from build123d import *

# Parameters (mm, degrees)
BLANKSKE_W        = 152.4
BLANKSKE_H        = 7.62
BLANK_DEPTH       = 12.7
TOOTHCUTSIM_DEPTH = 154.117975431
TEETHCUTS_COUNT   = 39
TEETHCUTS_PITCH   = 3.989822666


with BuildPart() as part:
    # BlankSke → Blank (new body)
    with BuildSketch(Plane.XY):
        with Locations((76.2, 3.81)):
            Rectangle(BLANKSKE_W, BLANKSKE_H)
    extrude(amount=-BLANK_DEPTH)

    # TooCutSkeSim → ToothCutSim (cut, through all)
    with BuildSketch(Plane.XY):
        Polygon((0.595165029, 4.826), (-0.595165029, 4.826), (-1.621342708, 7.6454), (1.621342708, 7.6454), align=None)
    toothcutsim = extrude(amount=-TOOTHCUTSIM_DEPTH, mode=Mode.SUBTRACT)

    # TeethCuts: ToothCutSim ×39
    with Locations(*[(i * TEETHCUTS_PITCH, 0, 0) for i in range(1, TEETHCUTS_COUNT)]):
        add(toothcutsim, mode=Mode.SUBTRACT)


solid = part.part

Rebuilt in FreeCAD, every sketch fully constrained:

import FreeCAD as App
import Part
import Sketcher

V = App.Vector
Q = App.Units.Quantity

doc = App.newDocument("Part")
body = doc.addObject("PartDesign::Body", "Body")

sketch1 = body.newObject("Sketcher::SketchObject", "Sketch")
sketch1.AttachmentSupport = (doc.getObject("XY_Plane"), [""])
sketch1.MapMode = "FlatFace"
sketch1.addGeometry(Part.LineSegment(V(0, 8, 0), V(0, 0, 0)), False)
sketch1.addGeometry(Part.LineSegment(V(0, 0, 0), V(152, 0, 0)), False)
sketch1.addGeometry(Part.LineSegment(V(152, 0, 0), V(152, 8, 0)), False)
sketch1.addGeometry(Part.LineSegment(V(152, 8, 0), V(0, 8, 0)), False)
sketch1.addConstraint(Sketcher.Constraint("Coincident", 0, 2, 1, 1))
sketch1.addConstraint(Sketcher.Constraint("Coincident", 1, 2, 2, 1))
sketch1.addConstraint(Sketcher.Constraint("Coincident", 2, 2, 3, 1))
sketch1.addConstraint(Sketcher.Constraint("Coincident", 3, 2, 0, 1))
sketch1.addConstraint(Sketcher.Constraint("Vertical", 0))
sketch1.addConstraint(Sketcher.Constraint("Horizontal", 1))
sketch1.addConstraint(Sketcher.Constraint("Vertical", 2))
sketch1.addConstraint(Sketcher.Constraint("Horizontal", 3))
sketch1.addConstraint(Sketcher.Constraint("Coincident", 0, 2, -1, 1))
sketch1.addConstraint(Sketcher.Constraint("DistanceX", 1, 1, 1, 2, Q("6 in")))
sketch1.addConstraint(Sketcher.Constraint("DistanceY", 0, 2, 0, 1, Q("0.3 in")))
pad1 = body.newObject("PartDesign::Pad", "Pad")
pad1.Profile = sketch1
pad1.Length = Q("0.5 in")
pad1.Reversed = True

sketch2 = body.newObject("Sketcher::SketchObject", "Sketch001")
sketch2.AttachmentSupport = (doc.getObject("XY_Plane"), [""])
sketch2.MapMode = "FlatFace"
sketch2.addGeometry(Part.LineSegment(V(-0.6, 4.8, 0), V(0.6, 4.8, 0)), False)
sketch2.addGeometry(Part.LineSegment(V(0.6, 4.8, 0), V(1.6, 7.6, 0)), False)
sketch2.addGeometry(Part.LineSegment(V(1.6, 7.6, 0), V(-1.6, 7.6, 0)), False)
sketch2.addGeometry(Part.LineSegment(V(-1.6, 7.6, 0), V(-0.6, 4.8, 0)), False)
sketch2.addConstraint(Sketcher.Constraint("Coincident", 0, 2, 1, 1))
sketch2.addConstraint(Sketcher.Constraint("Coincident", 1, 2, 2, 1))
sketch2.addConstraint(Sketcher.Constraint("Coincident", 2, 2, 3, 1))
sketch2.addConstraint(Sketcher.Constraint("Coincident", 3, 2, 0, 1))
sketch2.addConstraint(Sketcher.Constraint("Horizontal", 0))
sketch2.addConstraint(Sketcher.Constraint("Horizontal", 2))
sketch2.addConstraint(Sketcher.Constraint("Equal", 1, 3))
sketch2.addConstraint(Sketcher.Constraint("Angle", 1, Q("70 deg")))
sketch2.addConstraint(Sketcher.Constraint("DistanceY", -1, 1, 0, 2, Q("0.19 in")))
sketch2.addConstraint(Sketcher.Constraint("DistanceY", -1, 1, 1, 2, Q("0.301 in")))
sketch2.addConstraint(Sketcher.Constraint("DistanceX", 0, 1, 0, 2, Q("1.19033 mm")))
sketch2.addConstraint(Sketcher.Constraint("DistanceX", -1, 1, 0, 2, Q("0.595165 mm")))
pocket1 = body.newObject("PartDesign::Pocket", "Pocket")
pocket1.Profile = sketch2
pocket1.Type = "ThroughAll"
doc.recompute()

linearpattern = body.newObject("PartDesign::LinearPattern", "LinearPattern")
linearpattern.Originals = [pocket1]
linearpattern.Direction = (doc.getObject("X_Axis"), [""])
linearpattern.Mode = "offset"
linearpattern.Offset = 3.989823
linearpattern.Occurrences = 39
body.Tip = linearpattern

doc.recompute()
